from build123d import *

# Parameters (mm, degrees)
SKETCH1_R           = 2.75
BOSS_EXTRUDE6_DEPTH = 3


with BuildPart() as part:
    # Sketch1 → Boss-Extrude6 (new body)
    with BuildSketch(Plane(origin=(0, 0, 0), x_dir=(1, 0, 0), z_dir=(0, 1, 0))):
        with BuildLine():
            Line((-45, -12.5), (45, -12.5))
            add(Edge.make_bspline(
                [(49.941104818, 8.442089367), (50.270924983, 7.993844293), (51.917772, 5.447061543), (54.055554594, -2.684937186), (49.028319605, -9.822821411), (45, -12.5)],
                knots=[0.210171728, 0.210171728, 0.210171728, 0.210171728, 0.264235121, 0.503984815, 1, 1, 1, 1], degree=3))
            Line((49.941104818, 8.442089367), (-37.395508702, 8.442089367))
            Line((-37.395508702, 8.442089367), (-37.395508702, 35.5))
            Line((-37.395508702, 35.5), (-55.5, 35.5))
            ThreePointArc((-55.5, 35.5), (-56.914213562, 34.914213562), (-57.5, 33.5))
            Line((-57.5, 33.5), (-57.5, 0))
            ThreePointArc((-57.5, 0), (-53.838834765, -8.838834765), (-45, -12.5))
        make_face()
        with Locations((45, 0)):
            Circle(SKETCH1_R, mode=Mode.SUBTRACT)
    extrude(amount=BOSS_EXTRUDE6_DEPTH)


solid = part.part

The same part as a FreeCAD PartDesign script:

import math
import FreeCAD as App
import Part
import Sketcher

V = App.Vector

doc = App.newDocument("Part")
body = doc.addObject("PartDesign::Body", "Body")

# Sketch on XZ plane
sketch1 = body.newObject("Sketcher::SketchObject", "Sketch")
sketch1.AttachmentSupport = (doc.getObject("XZ_Plane"), [""])
sketch1.MapMode = "FlatFace"
sketch1.addGeometry([
    Part.LineSegment(V(-45, 12.5, 0), V(45, 12.5, 0)),  # 0
    Part.BSplineCurve([V(49.941105, -8.442089, 0), V(50.270925, -7.993844, 0), V(51.917772, -5.447062, 0), V(54.055555, 2.684937, 0), V(49.02832, 9.822821, 0), V(45, 12.5, 0)], [4, 1, 1, 4], [0.210171728, 0.264235121, 0.503984815, 1], False, 3, [1, 1, 1, 1, 1, 1], False),  # 1
    Part.LineSegment(V(49.941105, -8.442089, 0), V(-37.395509, -8.442089, 0)),  # 2
    Part.LineSegment(V(-37.395509, -8.442089, 0), V(-37.395509, -35.5, 0)),  # 3
    Part.LineSegment(V(-37.395509, -35.5, 0), V(-55.5, -35.5, 0)),  # 4
    Part.ArcOfCircle(Part.Circle(V(-55.5, -33.5, 0), V(0, 0, 1), 2), math.radians(-180), math.radians(-90)),  # 5
    Part.LineSegment(V(-57.5, -33.5, 0), V(-57.5, 0, 0)),  # 6
    Part.ArcOfCircle(Part.Circle(V(-45, 0, 0), V(0, 0, 1), 12.5), math.radians(90), math.radians(180)),  # 7
    Part.Circle(V(45, 0, 0), V(0, 0, 1), 2.75),  # 8
], False)
sketch1.addConstraint([
    Sketcher.Constraint("Block", 1),
    Sketcher.Constraint("Coincident", 0, 2, 1, 2),
    Sketcher.Constraint("Coincident", 1, 1, 2, 1),
    Sketcher.Constraint("Coincident", 2, 2, 3, 1),
    Sketcher.Constraint("Coincident", 3, 2, 4, 1),
    Sketcher.Constraint("Tangent", 4, 2, 5, 2),
    Sketcher.Constraint("Tangent", 5, 1, 6, 1),
    Sketcher.Constraint("Tangent", 6, 2, 7, 2),
    Sketcher.Constraint("Tangent", 7, 1, 0, 1),
    Sketcher.Constraint("Horizontal", 0),
    Sketcher.Constraint("Horizontal", 2),
    Sketcher.Constraint("Vertical", 3),
    Sketcher.Constraint("Horizontal", 4),
    Sketcher.Constraint("Vertical", 6),
    Sketcher.Constraint("Symmetric", 7, 3, 8, 3, -1, 1),
    Sketcher.Constraint("PointOnObject", 7, 3, -1),
    Sketcher.Constraint("Vertical", 8, 3, 0, 2),
    Sketcher.Constraint("Radius", 5, 2.0),
    Sketcher.Constraint("Diameter", 8, 5.5),
    Sketcher.Constraint("DistanceY", 6, 1, 6, 2, 33.5),
    Sketcher.Constraint("DistanceX", 4, 2, 4, 1, 18.104491),
])
pad1 = body.newObject("PartDesign::Pad", "Pad")
pad1.Profile = sketch1
pad1.Length = 3
pad1.Reversed = True

doc.recompute()
